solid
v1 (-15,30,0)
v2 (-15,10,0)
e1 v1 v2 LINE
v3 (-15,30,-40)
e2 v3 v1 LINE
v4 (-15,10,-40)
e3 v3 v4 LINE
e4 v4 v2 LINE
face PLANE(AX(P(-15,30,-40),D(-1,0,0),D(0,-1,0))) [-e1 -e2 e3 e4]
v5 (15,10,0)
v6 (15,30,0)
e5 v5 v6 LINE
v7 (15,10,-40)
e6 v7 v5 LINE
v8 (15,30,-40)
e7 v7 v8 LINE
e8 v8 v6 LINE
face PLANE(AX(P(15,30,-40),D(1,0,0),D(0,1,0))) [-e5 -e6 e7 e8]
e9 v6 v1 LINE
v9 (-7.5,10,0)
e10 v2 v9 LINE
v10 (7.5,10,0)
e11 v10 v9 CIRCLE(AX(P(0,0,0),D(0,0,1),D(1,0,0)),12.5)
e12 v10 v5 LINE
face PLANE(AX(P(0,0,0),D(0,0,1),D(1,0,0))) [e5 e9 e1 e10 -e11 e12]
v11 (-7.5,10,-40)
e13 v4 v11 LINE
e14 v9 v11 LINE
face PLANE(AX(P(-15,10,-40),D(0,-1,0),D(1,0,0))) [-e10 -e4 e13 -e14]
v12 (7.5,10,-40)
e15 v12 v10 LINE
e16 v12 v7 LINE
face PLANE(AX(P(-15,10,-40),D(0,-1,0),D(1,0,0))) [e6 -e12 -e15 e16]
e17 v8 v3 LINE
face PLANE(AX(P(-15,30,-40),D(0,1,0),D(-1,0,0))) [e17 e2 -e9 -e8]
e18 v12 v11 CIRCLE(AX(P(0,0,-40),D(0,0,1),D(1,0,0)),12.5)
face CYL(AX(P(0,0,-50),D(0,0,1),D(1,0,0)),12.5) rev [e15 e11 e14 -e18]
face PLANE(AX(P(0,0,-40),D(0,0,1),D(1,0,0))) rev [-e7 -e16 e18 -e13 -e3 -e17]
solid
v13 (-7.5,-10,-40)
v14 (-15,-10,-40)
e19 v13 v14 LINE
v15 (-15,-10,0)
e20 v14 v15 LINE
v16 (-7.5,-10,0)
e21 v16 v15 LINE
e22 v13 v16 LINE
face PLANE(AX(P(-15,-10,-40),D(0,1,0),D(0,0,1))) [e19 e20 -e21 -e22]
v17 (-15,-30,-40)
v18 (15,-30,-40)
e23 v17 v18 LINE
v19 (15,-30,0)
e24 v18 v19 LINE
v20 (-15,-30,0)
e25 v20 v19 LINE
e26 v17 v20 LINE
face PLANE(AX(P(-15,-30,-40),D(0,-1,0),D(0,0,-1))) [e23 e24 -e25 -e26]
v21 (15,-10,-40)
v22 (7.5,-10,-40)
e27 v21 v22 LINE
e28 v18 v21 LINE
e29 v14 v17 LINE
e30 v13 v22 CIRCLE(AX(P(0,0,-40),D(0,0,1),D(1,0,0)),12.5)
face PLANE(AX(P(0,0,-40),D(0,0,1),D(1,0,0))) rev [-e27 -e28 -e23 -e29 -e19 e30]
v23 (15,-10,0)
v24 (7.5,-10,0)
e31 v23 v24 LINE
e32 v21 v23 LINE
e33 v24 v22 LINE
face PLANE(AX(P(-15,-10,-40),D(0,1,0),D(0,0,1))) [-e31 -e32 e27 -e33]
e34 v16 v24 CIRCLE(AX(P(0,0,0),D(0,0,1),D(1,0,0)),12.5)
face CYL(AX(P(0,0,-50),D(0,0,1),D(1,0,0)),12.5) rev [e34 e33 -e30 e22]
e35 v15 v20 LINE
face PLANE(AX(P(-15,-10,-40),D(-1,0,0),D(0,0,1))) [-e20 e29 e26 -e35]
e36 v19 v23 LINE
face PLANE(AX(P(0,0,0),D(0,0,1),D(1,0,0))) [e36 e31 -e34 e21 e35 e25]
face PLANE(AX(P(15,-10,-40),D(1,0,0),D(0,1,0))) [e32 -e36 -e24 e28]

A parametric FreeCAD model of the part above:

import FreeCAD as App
import Part
import Sketcher
Q = App.Units.Quantity

doc = App.newDocument("Part")
body = doc.addObject("PartDesign::Body", "Body")

sketch1 = body.newObject("Sketcher::SketchObject", "Sketch")
sketch1.AttachmentSupport = (doc.getObject("XY_Plane"), [""])
sketch1.MapMode = "FlatFace"
sketch1.addGeometry([
    Part.LineSegment(App.Vector(-15, 30, 0), App.Vector(-15, 10, 0)),
    Part.LineSegment(App.Vector(-15, 10, 0), App.Vector(15, 10, 0)),
    Part.LineSegment(App.Vector(15, 10, 0), App.Vector(15, 30, 0)),
    Part.LineSegment(App.Vector(15, 30, 0), App.Vector(-15, 30, 0)),
], False)
sketch1.addConstraint([
    Sketcher.Constraint("Coincident", 0, 2, 1, 1),
    Sketcher.Constraint("Coincident", 1, 2, 2, 1),
    Sketcher.Constraint("Coincident", 2, 2, 3, 1),
    Sketcher.Constraint("Coincident", 3, 2, 0, 1),
    Sketcher.Constraint("Vertical", 0),
    Sketcher.Constraint("Horizontal", 1),
    Sketcher.Constraint("Vertical", 2),
    Sketcher.Constraint("Horizontal", 3),
    Sketcher.Constraint("DistanceX", 1, 1, 1, 2, Q("30 mm")),
    Sketcher.Constraint("DistanceY", 0, 2, 0, 1, Q("20 mm")),
    Sketcher.Constraint("DistanceX", 0, 2, -1, 1, Q("15 mm")),
    Sketcher.Constraint("DistanceY", -1, 1, 0, 2, Q("10 mm")),
])
pad1 = body.newObject("PartDesign::Pad", "Pad")
pad1.Profile = sketch1
pad1.Length = 40
pad1.Reversed = True
body2 = doc.addObject("PartDesign::Body", "Body001")

sketch2 = body2.newObject("Sketcher::SketchObject", "Sketch001")
sketch2.AttachmentSupport = (doc.getObject("XY_Plane001"), [""])
sketch2.MapMode = "FlatFace"
sketch2.addGeometry([
    Part.LineSegment(App.Vector(-15, -10, 0), App.Vector(-15, -30, 0)),
    Part.LineSegment(App.Vector(-15, -30, 0), App.Vector(15, -30, 0)),
    Part.LineSegment(App.Vector(15, -30, 0), App.Vector(15, -10, 0)),
    Part.LineSegment(App.Vector(15, -10, 0), App.Vector(-15, -10, 0)),
], False)
sketch2.addConstraint([
    Sketcher.Constraint("Coincident", 0, 2, 1, 1),
    Sketcher.Constraint("Coincident", 1, 2, 2, 1),
    Sketcher.Constraint("Coincident", 2, 2, 3, 1),
    Sketcher.Constraint("Coincident", 3, 2, 0, 1),
    Sketcher.Constraint("Vertical", 0),
    Sketcher.Constraint("Horizontal", 1),
    Sketcher.Constraint("Vertical", 2),
    Sketcher.Constraint("Horizontal", 3),
    Sketcher.Constraint("DistanceX", 1, 1, 1, 2, Q("30 mm")),
    Sketcher.Constraint("DistanceY", 0, 2, 0, 1, Q("20 mm")),
    Sketcher.Constraint("DistanceX", 0, 2, -1, 1, Q("15 mm")),
    Sketcher.Constraint("DistanceY", 0, 2, -1, 1, Q("30 mm")),
])
pad2 = body2.newObject("PartDesign::Pad", "Pad001")
pad2.Profile = sketch2
pad2.Length = 40
pad2.Reversed = True
body3 = doc.addObject("PartDesign::Body", "Body002")

sketch3 = body3.newObject("Sketcher::SketchObject", "Sketch002")
sketch3.AttachmentSupport = (doc.getObject("XY_Plane002"), [""])
sketch3.MapMode = "FlatFace"
sketch3.addGeometry(Part.Circle(App.Vector(0, 0, 0), App.Vector(0, 0, 1), 12), False)
sketch3.addConstraint([
    Sketcher.Constraint("Coincident", 0, 3, -1, 1),
    Sketcher.Constraint("Diameter", 0, Q("25 mm")),
])
pad3 = body3.newObject("PartDesign::Pad", "Pad002")
pad3.Profile = sketch3
pad3.Length = 50
pad3.Reversed = True
doc.recompute()

body4 = doc.addObject("PartDesign::Body", "Body003")
body4.BaseFeature = body3
boolean = body.newObject("PartDesign::Boolean", "Boolean")
boolean.Type = "Cut"
boolean.addObjects([body4])
doc.recompute()

boolean2 = body2.newObject("PartDesign::Boolean", "Boolean001")
boolean2.Type = "Cut"
boolean2.addObjects([body3])

doc.recompute()
